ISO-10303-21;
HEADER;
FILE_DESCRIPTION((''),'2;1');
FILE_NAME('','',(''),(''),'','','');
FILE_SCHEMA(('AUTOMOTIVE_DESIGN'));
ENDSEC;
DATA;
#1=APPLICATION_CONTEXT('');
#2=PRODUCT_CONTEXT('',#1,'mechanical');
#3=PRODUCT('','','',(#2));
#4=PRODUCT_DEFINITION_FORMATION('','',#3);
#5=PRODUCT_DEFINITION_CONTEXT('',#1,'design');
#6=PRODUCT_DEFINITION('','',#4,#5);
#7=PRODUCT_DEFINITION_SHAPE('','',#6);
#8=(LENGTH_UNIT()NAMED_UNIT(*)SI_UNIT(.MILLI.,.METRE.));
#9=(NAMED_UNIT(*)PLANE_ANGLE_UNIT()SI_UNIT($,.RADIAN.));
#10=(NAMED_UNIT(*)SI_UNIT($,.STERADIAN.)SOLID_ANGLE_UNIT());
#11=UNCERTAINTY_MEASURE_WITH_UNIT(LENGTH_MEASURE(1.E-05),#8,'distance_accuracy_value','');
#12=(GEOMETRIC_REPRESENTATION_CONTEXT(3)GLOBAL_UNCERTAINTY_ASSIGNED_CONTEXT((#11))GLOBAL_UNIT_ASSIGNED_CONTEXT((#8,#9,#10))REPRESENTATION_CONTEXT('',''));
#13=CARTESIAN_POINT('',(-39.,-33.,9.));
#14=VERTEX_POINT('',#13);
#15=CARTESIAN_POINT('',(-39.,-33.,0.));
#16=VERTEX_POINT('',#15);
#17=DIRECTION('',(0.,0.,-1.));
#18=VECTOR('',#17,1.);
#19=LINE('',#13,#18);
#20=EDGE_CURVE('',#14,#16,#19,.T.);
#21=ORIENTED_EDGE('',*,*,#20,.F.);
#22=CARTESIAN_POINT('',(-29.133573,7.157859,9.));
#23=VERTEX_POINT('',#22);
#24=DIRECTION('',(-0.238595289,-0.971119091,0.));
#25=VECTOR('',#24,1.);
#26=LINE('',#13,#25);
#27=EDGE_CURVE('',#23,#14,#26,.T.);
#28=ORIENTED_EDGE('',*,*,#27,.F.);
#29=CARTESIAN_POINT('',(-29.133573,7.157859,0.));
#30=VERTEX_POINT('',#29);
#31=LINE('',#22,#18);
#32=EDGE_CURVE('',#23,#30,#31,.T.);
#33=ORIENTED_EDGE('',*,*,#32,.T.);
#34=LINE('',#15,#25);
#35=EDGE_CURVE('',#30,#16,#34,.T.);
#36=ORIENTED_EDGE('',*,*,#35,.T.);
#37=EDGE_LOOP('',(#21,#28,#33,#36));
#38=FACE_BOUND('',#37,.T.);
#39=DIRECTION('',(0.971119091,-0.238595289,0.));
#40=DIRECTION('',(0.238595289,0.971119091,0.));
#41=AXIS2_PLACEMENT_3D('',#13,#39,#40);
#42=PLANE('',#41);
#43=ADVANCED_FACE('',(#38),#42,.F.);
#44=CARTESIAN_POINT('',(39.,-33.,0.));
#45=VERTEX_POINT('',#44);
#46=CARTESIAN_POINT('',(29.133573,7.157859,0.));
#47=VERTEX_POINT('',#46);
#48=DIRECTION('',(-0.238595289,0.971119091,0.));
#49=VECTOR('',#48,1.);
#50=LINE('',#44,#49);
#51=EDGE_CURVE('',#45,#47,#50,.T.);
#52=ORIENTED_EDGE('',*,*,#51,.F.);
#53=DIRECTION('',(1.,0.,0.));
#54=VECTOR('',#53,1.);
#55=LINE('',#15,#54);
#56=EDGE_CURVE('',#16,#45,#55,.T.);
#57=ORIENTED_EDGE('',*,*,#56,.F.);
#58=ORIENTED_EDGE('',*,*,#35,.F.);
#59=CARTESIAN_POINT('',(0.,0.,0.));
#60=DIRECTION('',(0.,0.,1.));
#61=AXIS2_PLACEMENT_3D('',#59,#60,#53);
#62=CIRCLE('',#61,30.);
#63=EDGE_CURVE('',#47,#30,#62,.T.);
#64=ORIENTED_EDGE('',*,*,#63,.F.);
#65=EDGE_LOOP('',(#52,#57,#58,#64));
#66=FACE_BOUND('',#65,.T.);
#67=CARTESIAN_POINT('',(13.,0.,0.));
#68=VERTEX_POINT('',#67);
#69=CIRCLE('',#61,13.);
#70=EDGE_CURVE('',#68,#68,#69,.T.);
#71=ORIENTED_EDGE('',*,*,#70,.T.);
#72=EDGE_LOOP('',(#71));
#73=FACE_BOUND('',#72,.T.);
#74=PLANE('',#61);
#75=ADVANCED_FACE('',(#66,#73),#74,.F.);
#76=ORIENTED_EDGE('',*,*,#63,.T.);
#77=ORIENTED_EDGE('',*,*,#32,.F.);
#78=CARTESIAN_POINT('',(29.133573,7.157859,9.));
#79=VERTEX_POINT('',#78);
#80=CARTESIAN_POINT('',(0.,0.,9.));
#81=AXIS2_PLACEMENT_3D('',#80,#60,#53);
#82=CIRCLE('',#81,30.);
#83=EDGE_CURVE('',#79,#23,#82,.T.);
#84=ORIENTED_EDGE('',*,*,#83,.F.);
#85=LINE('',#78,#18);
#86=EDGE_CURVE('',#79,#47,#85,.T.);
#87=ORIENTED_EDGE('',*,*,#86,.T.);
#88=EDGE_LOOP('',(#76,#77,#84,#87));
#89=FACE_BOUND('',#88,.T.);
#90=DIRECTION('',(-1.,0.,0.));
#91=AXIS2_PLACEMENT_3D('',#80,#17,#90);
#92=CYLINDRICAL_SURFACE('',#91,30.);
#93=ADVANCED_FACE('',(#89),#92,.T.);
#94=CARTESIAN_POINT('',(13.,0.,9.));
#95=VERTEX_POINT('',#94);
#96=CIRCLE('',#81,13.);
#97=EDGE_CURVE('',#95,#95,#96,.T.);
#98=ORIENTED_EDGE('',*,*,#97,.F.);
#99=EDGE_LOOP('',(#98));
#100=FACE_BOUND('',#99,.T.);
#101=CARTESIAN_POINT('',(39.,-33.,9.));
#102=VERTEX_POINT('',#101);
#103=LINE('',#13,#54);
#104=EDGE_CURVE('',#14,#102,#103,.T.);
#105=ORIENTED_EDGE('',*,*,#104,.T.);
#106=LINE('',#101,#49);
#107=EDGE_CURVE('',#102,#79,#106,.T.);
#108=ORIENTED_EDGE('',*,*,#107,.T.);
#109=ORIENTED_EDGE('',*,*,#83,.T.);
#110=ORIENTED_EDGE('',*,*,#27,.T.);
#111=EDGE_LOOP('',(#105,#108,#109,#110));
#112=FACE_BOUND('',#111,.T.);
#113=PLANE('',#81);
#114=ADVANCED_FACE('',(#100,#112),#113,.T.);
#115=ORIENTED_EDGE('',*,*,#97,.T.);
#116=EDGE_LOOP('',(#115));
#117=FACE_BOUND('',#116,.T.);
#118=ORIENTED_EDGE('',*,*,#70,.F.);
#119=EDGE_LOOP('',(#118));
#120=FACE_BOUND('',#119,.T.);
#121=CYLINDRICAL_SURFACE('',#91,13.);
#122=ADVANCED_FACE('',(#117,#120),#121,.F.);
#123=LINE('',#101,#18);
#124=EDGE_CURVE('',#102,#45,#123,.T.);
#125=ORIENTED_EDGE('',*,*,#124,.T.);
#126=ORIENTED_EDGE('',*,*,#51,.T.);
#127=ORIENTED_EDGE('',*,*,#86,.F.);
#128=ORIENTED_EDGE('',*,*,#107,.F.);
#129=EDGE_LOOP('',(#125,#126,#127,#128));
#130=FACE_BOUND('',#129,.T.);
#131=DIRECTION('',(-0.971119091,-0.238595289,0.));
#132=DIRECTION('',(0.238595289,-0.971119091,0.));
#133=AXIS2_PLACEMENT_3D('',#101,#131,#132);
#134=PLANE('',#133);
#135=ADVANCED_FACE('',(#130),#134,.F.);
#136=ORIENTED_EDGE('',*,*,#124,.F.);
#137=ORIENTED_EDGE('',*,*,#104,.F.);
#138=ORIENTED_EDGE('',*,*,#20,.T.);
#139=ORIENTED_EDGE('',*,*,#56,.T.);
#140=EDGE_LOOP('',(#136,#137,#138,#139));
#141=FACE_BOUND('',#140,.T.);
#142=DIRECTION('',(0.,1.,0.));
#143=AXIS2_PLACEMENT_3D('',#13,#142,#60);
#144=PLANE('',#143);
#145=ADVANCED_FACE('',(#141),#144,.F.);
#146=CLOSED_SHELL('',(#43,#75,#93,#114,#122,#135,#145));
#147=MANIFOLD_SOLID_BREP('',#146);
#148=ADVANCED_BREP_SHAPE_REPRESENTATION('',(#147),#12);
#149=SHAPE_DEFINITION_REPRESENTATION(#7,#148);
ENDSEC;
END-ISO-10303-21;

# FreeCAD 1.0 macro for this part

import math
import FreeCAD as App
import Part
import Sketcher

V = App.Vector

doc = App.newDocument("Part")
body = doc.addObject("PartDesign::Body", "Body")

# Sketch on XY plane
sketch1 = body.newObject("Sketcher::SketchObject", "Sketch")
sketch1.AttachmentSupport = (doc.getObject("XY_Plane"), [""])
sketch1.MapMode = "FlatFace"
sketch1.addGeometry(Part.LineSegment(V(-39, -33, 0), V(39, -33, 0)), False)
sketch1.addGeometry(Part.LineSegment(V(39, -33, 0), V(29, 7, 0)), False)
sketch1.addGeometry(Part.ArcOfCircle(Part.Circle(V(0, 0, 0), V(0, 0, 1), 30), math.radians(14), math.radians(166)), False)
sketch1.addGeometry(Part.LineSegment(V(-29, 7, 0), V(-39, -33, 0)), False)
sketch1.addGeometry(Part.Circle(V(0, 0, 0), V(0, 0, 1), 13), False)
sketch1.addConstraint(Sketcher.Constraint("Coincident", 0, 2, 1, 1))
sketch1.addConstraint(Sketcher.Constraint("Tangent", 1, 2, 2, 1))
sketch1.addConstraint(Sketcher.Constraint("Tangent", 2, 2, 3, 1))
sketch1.addConstraint(Sketcher.Constraint("Coincident", 3, 2, 0, 1))
sketch1.addConstraint(Sketcher.Constraint("Horizontal", 0))
sketch1.addConstraint(Sketcher.Constraint("Coincident", 2, 3, -1, 1))
sketch1.addConstraint(Sketcher.Constraint("Coincident", 4, 3, -1, 1))
sketch1.addConstraint(Sketcher.Constraint("Horizontal", 1, 2, 2, 2))
sketch1.addConstraint(Sketcher.Constraint("Diameter", 4, 26.0))
sketch1.addConstraint(Sketcher.Constraint("Radius", 2, 30.0))
sketch1.addConstraint(Sketcher.Constraint("DistanceX", 0, 1, 0, 2, 78.0))
sketch1.addConstraint(Sketcher.Constraint("DistanceY", 0, 2, -1, 1, 33.0))
pad1 = body.newObject("PartDesign::Pad", "Pad")
pad1.Profile = sketch1
pad1.Length = 9

doc.recompute()
